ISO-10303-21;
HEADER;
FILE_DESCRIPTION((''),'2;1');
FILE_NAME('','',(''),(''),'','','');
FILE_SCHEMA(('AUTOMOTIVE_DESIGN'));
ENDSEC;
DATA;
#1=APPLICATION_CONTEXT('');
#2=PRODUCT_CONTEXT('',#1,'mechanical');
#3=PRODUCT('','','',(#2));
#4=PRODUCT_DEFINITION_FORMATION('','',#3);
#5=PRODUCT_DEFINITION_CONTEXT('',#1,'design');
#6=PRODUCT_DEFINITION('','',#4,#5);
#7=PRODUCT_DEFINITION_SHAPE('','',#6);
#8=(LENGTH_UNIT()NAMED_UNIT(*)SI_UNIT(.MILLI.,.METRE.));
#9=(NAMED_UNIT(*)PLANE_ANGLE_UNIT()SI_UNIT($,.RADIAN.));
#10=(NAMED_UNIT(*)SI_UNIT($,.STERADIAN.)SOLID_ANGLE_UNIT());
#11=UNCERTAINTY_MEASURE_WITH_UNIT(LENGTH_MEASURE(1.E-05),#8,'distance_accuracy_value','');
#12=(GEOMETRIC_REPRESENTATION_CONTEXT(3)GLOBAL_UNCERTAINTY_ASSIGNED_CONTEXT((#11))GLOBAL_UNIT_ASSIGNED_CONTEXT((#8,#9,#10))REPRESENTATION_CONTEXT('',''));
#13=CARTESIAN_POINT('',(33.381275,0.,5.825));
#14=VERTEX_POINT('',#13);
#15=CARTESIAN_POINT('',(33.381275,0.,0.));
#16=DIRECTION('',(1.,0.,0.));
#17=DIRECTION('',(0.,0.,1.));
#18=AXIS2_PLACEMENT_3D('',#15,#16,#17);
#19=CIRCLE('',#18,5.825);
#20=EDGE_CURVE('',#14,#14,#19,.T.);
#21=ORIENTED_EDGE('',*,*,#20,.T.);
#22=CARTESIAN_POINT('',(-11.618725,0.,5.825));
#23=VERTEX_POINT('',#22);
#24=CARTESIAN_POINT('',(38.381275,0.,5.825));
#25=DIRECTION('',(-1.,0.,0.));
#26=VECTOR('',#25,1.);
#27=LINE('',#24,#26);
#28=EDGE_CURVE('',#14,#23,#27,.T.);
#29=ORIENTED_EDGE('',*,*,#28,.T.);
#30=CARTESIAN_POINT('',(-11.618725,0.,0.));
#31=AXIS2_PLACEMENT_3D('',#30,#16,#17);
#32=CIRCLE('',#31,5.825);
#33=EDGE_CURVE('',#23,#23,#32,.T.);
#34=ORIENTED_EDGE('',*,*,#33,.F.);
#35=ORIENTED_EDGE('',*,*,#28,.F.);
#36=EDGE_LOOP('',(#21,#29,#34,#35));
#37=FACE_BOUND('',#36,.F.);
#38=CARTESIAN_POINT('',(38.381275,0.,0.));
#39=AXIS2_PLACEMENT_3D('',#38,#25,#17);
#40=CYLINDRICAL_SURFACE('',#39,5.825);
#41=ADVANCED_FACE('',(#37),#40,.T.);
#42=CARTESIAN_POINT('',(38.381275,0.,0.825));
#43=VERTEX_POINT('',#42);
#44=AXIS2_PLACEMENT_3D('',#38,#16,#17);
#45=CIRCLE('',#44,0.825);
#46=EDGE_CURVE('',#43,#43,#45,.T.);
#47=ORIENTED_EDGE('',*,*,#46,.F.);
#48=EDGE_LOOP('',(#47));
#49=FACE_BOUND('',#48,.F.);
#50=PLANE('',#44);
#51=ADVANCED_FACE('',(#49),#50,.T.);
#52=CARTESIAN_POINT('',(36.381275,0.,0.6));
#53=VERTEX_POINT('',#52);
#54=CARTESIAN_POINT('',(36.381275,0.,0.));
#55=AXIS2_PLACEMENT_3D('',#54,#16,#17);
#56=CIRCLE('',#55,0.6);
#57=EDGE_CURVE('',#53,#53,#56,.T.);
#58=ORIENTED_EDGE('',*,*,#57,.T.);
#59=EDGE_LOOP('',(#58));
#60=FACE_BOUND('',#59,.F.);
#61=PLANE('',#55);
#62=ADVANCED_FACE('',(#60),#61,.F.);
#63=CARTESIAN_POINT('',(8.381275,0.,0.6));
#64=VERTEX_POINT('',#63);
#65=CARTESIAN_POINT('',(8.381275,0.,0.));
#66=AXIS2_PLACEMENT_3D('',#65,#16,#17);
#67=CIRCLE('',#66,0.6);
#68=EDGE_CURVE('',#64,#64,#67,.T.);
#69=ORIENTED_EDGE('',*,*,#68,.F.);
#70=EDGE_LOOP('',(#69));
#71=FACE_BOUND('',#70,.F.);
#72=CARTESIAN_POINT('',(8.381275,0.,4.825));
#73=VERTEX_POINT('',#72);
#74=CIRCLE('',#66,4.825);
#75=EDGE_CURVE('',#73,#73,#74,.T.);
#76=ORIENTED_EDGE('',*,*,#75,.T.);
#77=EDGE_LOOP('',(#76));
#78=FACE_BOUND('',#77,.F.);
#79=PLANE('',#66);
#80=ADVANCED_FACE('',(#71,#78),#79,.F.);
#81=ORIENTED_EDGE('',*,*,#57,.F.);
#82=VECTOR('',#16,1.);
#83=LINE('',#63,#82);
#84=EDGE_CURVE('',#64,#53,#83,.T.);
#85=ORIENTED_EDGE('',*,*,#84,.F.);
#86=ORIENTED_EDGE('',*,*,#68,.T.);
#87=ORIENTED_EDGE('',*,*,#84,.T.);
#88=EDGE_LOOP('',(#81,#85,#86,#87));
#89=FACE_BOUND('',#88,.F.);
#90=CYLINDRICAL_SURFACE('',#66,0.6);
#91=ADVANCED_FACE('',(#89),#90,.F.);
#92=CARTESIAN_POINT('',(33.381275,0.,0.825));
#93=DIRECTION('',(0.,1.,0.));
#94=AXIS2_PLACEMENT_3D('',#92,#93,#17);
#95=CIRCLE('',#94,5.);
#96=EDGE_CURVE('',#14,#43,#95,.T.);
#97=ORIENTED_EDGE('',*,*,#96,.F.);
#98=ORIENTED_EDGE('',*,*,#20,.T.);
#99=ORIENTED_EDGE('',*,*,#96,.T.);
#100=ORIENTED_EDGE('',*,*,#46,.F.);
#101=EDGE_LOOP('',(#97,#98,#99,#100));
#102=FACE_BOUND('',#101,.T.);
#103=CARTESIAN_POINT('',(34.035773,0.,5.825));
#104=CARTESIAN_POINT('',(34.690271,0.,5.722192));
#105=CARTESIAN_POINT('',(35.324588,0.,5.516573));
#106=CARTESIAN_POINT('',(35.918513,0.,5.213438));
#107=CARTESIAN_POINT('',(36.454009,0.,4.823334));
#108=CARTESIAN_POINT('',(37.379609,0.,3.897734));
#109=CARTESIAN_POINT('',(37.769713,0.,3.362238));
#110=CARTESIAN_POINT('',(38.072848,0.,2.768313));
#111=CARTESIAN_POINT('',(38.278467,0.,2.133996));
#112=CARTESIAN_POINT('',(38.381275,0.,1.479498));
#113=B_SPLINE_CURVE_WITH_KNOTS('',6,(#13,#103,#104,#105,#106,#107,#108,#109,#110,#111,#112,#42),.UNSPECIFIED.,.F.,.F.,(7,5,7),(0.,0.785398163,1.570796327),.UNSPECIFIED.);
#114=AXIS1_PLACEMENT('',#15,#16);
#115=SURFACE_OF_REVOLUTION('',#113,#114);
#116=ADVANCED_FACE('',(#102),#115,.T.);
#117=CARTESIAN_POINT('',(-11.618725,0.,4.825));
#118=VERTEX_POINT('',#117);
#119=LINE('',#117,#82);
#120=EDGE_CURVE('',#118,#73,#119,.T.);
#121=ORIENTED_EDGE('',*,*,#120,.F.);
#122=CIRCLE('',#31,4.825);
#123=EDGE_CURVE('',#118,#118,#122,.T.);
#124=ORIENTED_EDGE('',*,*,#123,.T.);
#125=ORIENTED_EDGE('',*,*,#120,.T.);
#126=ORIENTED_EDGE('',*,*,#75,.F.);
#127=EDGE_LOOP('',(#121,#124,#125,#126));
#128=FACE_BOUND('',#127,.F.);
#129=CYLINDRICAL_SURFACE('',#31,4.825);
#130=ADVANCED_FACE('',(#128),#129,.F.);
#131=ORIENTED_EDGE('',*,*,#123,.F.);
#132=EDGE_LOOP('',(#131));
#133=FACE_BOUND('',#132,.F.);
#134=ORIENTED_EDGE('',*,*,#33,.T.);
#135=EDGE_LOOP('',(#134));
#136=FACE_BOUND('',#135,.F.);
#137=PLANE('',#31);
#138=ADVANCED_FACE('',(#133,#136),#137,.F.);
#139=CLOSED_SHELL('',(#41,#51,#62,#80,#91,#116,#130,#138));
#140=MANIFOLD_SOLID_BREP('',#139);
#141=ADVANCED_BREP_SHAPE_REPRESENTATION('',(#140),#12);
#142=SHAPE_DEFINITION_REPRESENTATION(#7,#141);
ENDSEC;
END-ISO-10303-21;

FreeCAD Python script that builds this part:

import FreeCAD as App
import Part
import Sketcher


def edges_at(feature, points):
    """Names of the edges that pass closest to the given points."""
    edges = feature.Shape.Edges
    near = lambda p: min(range(len(edges)), key=lambda i: edges[i].distToShape(Part.Vertex(*p))[0])
    return sorted({f"Edge{near(p) + 1}" for p in points})

doc = App.newDocument("Part")
body = doc.addObject("PartDesign::Body", "Body")

# Sketch on XZ plane
sketch1 = body.newObject("Sketcher::SketchObject", "Sketch")
sketch1.AttachmentSupport = (doc.getObject("XZ_Plane"), [""])
sketch1.MapMode = "FlatFace"
sketch1.addGeometry(Part.LineSegment(App.Vector(38.4, 5.8, 0), App.Vector(-11.6, 5.8, 0)), False)
sketch1.addGeometry(Part.LineSegment(App.Vector(-11.6, 5.8, 0), App.Vector(-11.6, 4.8, 0)), False)
sketch1.addGeometry(Part.LineSegment(App.Vector(-11.6, 4.8, 0), App.Vector(8.4, 4.8, 0)), False)
sketch1.addGeometry(Part.LineSegment(App.Vector(8.4, 4.8, 0), App.Vector(8.4, 0.6, 0)), False)
sketch1.addGeometry(Part.LineSegment(App.Vector(8.4, 0.6, 0), App.Vector(36.4, 0.6, 0)), False)
sketch1.addGeometry(Part.LineSegment(App.Vector(36.4, 0.6, 0), App.Vector(36.4, 0, 0)), False)
sketch1.addGeometry(Part.LineSegment(App.Vector(36.4, 0, 0), App.Vector(38.4, 0, 0)), False)
sketch1.addGeometry(Part.LineSegment(App.Vector(38.4, 0, 0), App.Vector(38.4, 5.8, 0)), False)
sketch1.addConstraint(Sketcher.Constraint("Coincident", 0, 2, 1, 1))
sketch1.addConstraint(Sketcher.Constraint("Coincident", 1, 2, 2, 1))
sketch1.addConstraint(Sketcher.Constraint("Coincident", 2, 2, 3, 1))
sketch1.addConstraint(Sketcher.Constraint("Coincident", 3, 2, 4, 1))
sketch1.addConstraint(Sketcher.Constraint("Coincident", 4, 2, 5, 1))
sketch1.addConstraint(Sketcher.Constraint("Coincident", 5, 2, 6, 1))
sketch1.addConstraint(Sketcher.Constraint("Coincident", 6, 2, 7, 1))
sketch1.addConstraint(Sketcher.Constraint("Coincident", 7, 2, 0, 1))
sketch1.addConstraint(Sketcher.Constraint("Horizontal", 0))
sketch1.addConstraint(Sketcher.Constraint("Vertical", 1))
sketch1.addConstraint(Sketcher.Constraint("Horizontal", 2))
sketch1.addConstraint(Sketcher.Constraint("Vertical", 3))
sketch1.addConstraint(Sketcher.Constraint("Horizontal", 4))
sketch1.addConstraint(Sketcher.Constraint("Vertical", 5))
sketch1.addConstraint(Sketcher.Constraint("Horizontal", 6))
sketch1.addConstraint(Sketcher.Constraint("Vertical", 7))
sketch1.addConstraint(Sketcher.Constraint("PointOnObject", 5, 2, -1))
sketch1.addConstraint(Sketcher.Constraint("DistanceX", 0, 2, 0, 1, 50.0))
sketch1.addConstraint(Sketcher.Constraint("DistanceX", 2, 1, 2, 2, 20.0))
sketch1.addConstraint(Sketcher.Constraint("DistanceX", 4, 1, 4, 2, 28.0))
sketch1.addConstraint(Sketcher.Constraint("DistanceY", 1, 2, 1, 1, 1.0))
sketch1.addConstraint(Sketcher.Constraint("DistanceY", 5, 2, 5, 1, 0.6))
sketch1.addConstraint(Sketcher.Constraint("DistanceY", 3, 2, 3, 1, 4.225))
sketch1.addConstraint(Sketcher.Constraint("DistanceX", 0, 2, -1, 1, 11.618725))
revolution = body.newObject("PartDesign::Revolution", "Revolution")
revolution.Profile = sketch1
revolution.ReferenceAxis = (sketch1, ["H_Axis"])
revolution.Angle = 360
doc.recompute()

fillet = body.newObject("PartDesign::Fillet", "Fillet")
fillet.Base = (revolution, edges_at(revolution, [(38.381, 0, -5.825)]))
fillet.Radius = 5

doc.recompute()
